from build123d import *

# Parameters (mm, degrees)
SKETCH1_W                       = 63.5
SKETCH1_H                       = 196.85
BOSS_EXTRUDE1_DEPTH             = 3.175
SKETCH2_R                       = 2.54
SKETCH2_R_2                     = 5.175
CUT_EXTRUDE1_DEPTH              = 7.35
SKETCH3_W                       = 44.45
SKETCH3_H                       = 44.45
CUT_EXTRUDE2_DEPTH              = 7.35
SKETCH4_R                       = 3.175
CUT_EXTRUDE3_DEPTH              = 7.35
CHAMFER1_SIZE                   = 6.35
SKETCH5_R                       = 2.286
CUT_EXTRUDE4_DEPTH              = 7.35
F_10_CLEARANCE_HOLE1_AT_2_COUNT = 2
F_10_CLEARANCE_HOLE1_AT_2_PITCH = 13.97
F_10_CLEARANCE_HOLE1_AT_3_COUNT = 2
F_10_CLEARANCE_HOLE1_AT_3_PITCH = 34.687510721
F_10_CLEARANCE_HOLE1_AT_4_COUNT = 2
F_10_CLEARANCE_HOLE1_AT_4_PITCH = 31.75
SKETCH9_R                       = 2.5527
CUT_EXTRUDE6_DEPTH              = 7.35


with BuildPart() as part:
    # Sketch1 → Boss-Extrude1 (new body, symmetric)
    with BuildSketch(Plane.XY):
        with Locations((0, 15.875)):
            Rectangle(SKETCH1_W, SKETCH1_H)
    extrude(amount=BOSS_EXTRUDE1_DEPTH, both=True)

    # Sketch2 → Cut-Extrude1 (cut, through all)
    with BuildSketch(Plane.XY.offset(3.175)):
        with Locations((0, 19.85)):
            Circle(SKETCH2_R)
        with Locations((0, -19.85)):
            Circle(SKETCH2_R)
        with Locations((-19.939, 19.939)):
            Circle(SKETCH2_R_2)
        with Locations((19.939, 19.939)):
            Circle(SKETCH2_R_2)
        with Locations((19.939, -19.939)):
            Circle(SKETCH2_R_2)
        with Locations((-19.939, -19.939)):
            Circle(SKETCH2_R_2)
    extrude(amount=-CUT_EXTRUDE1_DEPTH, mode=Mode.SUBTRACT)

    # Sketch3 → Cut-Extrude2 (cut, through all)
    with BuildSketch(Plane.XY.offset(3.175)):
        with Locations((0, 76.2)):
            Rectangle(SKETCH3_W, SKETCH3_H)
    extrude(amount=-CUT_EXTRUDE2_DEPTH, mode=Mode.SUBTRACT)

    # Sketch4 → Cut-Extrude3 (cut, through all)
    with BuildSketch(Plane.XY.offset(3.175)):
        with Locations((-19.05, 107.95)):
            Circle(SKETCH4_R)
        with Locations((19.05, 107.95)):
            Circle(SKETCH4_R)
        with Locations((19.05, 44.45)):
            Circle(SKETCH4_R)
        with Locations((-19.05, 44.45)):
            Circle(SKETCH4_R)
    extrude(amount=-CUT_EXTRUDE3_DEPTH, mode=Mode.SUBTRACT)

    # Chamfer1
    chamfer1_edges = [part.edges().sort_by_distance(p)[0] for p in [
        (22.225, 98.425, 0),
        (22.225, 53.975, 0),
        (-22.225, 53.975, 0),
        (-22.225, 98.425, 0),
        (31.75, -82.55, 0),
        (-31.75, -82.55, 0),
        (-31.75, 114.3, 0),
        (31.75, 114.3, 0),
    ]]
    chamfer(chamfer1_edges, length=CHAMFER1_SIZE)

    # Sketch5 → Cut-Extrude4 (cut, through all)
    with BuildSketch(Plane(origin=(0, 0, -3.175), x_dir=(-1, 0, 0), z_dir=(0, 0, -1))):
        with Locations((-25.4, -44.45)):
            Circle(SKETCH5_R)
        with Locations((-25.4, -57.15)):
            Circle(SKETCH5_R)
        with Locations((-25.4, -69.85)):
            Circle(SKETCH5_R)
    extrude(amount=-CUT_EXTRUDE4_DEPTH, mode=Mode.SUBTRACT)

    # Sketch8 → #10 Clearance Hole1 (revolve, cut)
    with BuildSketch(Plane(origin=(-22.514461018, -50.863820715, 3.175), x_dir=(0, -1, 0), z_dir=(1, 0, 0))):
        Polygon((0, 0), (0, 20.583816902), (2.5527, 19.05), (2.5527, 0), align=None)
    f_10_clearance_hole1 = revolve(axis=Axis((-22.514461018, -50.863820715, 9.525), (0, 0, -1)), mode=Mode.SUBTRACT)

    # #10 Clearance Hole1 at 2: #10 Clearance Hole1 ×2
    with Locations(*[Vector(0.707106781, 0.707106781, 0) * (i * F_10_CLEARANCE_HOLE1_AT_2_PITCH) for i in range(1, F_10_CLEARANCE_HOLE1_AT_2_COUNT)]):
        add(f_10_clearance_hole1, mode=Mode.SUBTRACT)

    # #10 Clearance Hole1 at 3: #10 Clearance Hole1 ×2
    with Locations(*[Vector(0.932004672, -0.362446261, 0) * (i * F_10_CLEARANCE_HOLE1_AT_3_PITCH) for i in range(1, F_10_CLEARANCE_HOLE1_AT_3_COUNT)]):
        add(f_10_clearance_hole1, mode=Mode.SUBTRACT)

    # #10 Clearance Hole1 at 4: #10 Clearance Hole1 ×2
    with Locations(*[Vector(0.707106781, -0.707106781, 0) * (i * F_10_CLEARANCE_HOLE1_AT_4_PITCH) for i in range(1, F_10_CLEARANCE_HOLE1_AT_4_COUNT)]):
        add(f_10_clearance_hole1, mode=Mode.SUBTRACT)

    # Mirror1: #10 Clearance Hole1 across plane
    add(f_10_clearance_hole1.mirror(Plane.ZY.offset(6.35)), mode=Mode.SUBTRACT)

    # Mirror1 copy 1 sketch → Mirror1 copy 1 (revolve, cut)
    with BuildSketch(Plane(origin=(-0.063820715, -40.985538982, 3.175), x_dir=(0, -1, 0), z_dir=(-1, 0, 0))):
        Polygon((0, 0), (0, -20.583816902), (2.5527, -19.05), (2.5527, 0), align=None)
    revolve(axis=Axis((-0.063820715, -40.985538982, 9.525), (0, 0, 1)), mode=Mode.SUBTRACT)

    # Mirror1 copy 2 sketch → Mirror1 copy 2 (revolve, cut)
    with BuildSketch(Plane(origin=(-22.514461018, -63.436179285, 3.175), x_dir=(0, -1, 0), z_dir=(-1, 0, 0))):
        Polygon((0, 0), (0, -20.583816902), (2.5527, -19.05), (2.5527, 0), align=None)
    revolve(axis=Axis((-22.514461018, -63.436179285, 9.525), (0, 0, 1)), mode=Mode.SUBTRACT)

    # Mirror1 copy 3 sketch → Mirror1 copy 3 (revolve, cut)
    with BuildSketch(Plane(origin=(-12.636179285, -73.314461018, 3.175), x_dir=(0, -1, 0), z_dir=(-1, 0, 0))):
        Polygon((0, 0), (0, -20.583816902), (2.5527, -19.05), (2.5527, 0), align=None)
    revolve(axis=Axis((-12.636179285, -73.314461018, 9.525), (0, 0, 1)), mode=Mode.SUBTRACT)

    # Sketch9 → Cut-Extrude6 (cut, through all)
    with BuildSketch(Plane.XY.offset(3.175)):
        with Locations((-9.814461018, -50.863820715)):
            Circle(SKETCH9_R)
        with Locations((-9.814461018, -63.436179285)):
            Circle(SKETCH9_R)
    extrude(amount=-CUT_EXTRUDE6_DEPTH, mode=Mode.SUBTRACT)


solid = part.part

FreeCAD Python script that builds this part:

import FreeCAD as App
import Part
import Sketcher

V = App.Vector
Q = App.Units.Quantity


def edges_at(feature, points):
    """Names of the edges that pass closest to the given points."""
    edges = feature.Shape.Edges
    near = lambda p: min(range(len(edges)), key=lambda i: edges[i].distToShape(Part.Vertex(*p))[0])
    return sorted({f"Edge{near(p) + 1}" for p in points})

doc = App.newDocument("Part")
body = doc.addObject("PartDesign::Body", "Body")

sketch1 = body.newObject("Sketcher::SketchObject", "Sketch")
sketch1.AttachmentSupport = (doc.getObject("XY_Plane"), [""])
sketch1.MapMode = "FlatFace"
sketch1.addGeometry(Part.LineSegment(V(-32, 114, 0), V(-32, -83, 0)), False)
sketch1.addGeometry(Part.LineSegment(V(-32, -83, 0), V(32, -83, 0)), False)
sketch1.addGeometry(Part.LineSegment(V(32, -83, 0), V(32, 114, 0)), False)
sketch1.addGeometry(Part.LineSegment(V(32, 114, 0), V(-32, 114, 0)), False)
sketch1.addConstraint(Sketcher.Constraint("Coincident", 0, 2, 1, 1))
sketch1.addConstraint(Sketcher.Constraint("Coincident", 1, 2, 2, 1))
sketch1.addConstraint(Sketcher.Constraint("Coincident", 2, 2, 3, 1))
sketch1.addConstraint(Sketcher.Constraint("Coincident", 3, 2, 0, 1))
sketch1.addConstraint(Sketcher.Constraint("Vertical", 0))
sketch1.addConstraint(Sketcher.Constraint("Horizontal", 1))
sketch1.addConstraint(Sketcher.Constraint("Vertical", 2))
sketch1.addConstraint(Sketcher.Constraint("Horizontal", 3))
sketch1.addConstraint(Sketcher.Constraint("DistanceX", 1, 1, 1, 2, Q("2.5 in")))
sketch1.addConstraint(Sketcher.Constraint("DistanceY", 0, 2, 0, 1, Q("7.75 in")))
sketch1.addConstraint(Sketcher.Constraint("DistanceY", -1, 1, 2, 2, Q("4.5 in")))
sketch1.addConstraint(Sketcher.Constraint("DistanceX", 0, 2, -1, 1, Q("1.25 in")))
pad1 = body.newObject("PartDesign::Pad", "Pad")
pad1.Profile = sketch1
pad1.Length = Q("0.25 in")
pad1.Midplane = True

sketch2 = body.newObject("Sketcher::SketchObject", "Sketch001")
sketch2.AttachmentSupport = (doc.getObject("XY_Plane"), [""])
sketch2.MapMode = "FlatFace"
sketch2.AttachmentOffset = App.Placement(V(0, 0, 0.125 * 25.4), App.Rotation())
sketch2.addGeometry(Part.Circle(V(0, 19.9, 0), V(0, 0, 1), 2.5), False)
sketch2.addGeometry(Part.Circle(V(0, -19.9, 0), V(0, 0, 1), 2.5), False)
sketch2.addGeometry(Part.Circle(V(-19.9, 19.9, 0), V(0, 0, 1), 5.2), False)
sketch2.addGeometry(Part.Circle(V(19.9, 19.9, 0), V(0, 0, 1), 5.2), False)
sketch2.addGeometry(Part.Circle(V(19.9, -19.9, 0), V(0, 0, 1), 5.2), False)
sketch2.addGeometry(Part.Circle(V(-19.9, -19.9, 0), V(0, 0, 1), 5.2), False)
sketch2.addConstraint(Sketcher.Constraint("Equal", 0, 1))
sketch2.addConstraint(Sketcher.Constraint("Equal", 2, 3))
sketch2.addConstraint(Sketcher.Constraint("Equal", 3, 4))
sketch2.addConstraint(Sketcher.Constraint("Equal", 4, 5))
sketch2.addConstraint(Sketcher.Constraint("Symmetric", 0, 3, 1, 3, -1, 1))
sketch2.addConstraint(Sketcher.Constraint("Symmetric", 2, 3, 4, 3, -1, 1))
sketch2.addConstraint(Sketcher.Constraint("Symmetric", 3, 3, 5, 3, -1, 1))
sketch2.addConstraint(Sketcher.Constraint("Symmetric", 2, 3, 3, 3, -2))
sketch2.addConstraint(Sketcher.Constraint("PointOnObject", 0, 3, -2))
sketch2.addConstraint(Sketcher.Constraint("Diameter", 0, Q("0.2 in")))
sketch2.addConstraint(Sketcher.Constraint("Diameter", 2, Q("10.35 mm")))
sketch2.addConstraint(Sketcher.Constraint("DistanceX", 2, 3, 3, 3, Q("1.57 in")))
sketch2.addConstraint(Sketcher.Constraint("DistanceY", 4, 3, 3, 3, Q("1.57 in")))
sketch2.addConstraint(Sketcher.Constraint("DistanceY", -1, 1, 0, 3, Q("19.85 mm")))
pocket1 = body.newObject("PartDesign::Pocket", "Pocket")
pocket1.Profile = sketch2
pocket1.Type = "ThroughAll"

sketch3 = body.newObject("Sketcher::SketchObject", "Sketch002")
sketch3.AttachmentSupport = (doc.getObject("XY_Plane"), [""])
sketch3.MapMode = "FlatFace"
sketch3.AttachmentOffset = App.Placement(V(0, 0, 0.125 * 25.4), App.Rotation())
sketch3.addGeometry(Part.LineSegment(V(-22, 98, 0), V(-22, 54, 0)), False)
sketch3.addGeometry(Part.LineSegment(V(-22, 54, 0), V(22, 54, 0)), False)
sketch3.addGeometry(Part.LineSegment(V(22, 54, 0), V(22, 98, 0)), False)
sketch3.addGeometry(Part.LineSegment(V(22, 98, 0), V(-22, 98, 0)), False)
sketch3.addConstraint(Sketcher.Constraint("Coincident", 0, 2, 1, 1))
sketch3.addConstraint(Sketcher.Constraint("Coincident", 1, 2, 2, 1))
sketch3.addConstraint(Sketcher.Constraint("Coincident", 2, 2, 3, 1))
sketch3.addConstraint(Sketcher.Constraint("Coincident", 3, 2, 0, 1))
sketch3.addConstraint(Sketcher.Constraint("Vertical", 0))
sketch3.addConstraint(Sketcher.Constraint("Horizontal", 1))
sketch3.addConstraint(Sketcher.Constraint("Vertical", 2))
sketch3.addConstraint(Sketcher.Constraint("Horizontal", 3))
sketch3.addConstraint(Sketcher.Constraint("Equal", 3, 0))
sketch3.addConstraint(Sketcher.Constraint("DistanceX", 1, 1, 1, 2, Q("1.75 in")))
sketch3.addConstraint(Sketcher.Constraint("DistanceX", 0, 2, -1, 1, Q("0.875 in")))
sketch3.addConstraint(Sketcher.Constraint("DistanceY", -1, 1, 0, 2, Q("2.125 in")))
pocket2 = body.newObject("PartDesign::Pocket", "Pocket001")
pocket2.Profile = sketch3
pocket2.Type = "ThroughAll"

sketch4 = body.newObject("Sketcher::SketchObject", "Sketch003")
sketch4.AttachmentSupport = (doc.getObject("XY_Plane"), [""])
sketch4.MapMode = "FlatFace"
sketch4.AttachmentOffset = App.Placement(V(0, 0, 0.125 * 25.4), App.Rotation())
sketch4.addGeometry(Part.Circle(V(-19.1, 108, 0), V(0, 0, 1), 3.2), False)
sketch4.addGeometry(Part.Circle(V(19.1, 108, 0), V(0, 0, 1), 3.2), False)
sketch4.addGeometry(Part.Circle(V(19.1, 44.5, 0), V(0, 0, 1), 3.2), False)
sketch4.addGeometry(Part.Circle(V(-19.1, 44.5, 0), V(0, 0, 1), 3.2), False)
sketch4.addConstraint(Sketcher.Constraint("Equal", 0, 1))
sketch4.addConstraint(Sketcher.Constraint("Equal", 1, 2))
sketch4.addConstraint(Sketcher.Constraint("Equal", 2, 3))
sketch4.addConstraint(Sketcher.Constraint("Symmetric", 0, 3, 1, 3, -2))
sketch4.addConstraint(Sketcher.Constraint("Symmetric", 2, 3, 3, 3, -2))
sketch4.addConstraint(Sketcher.Constraint("Vertical", 1, 3, 2, 3))
sketch4.addConstraint(Sketcher.Constraint("Diameter", 0, Q("0.25 in")))
sketch4.addConstraint(Sketcher.Constraint("DistanceX", 0, 3, 1, 3, Q("1.5 in")))
sketch4.addConstraint(Sketcher.Constraint("DistanceY", 2, 3, 1, 3, Q("2.5 in")))
sketch4.addConstraint(Sketcher.Constraint("DistanceY", -1, 1, 0, 3, Q("4.25 in")))
pocket3 = body.newObject("PartDesign::Pocket", "Pocket002")
pocket3.Profile = sketch4
pocket3.Type = "ThroughAll"
doc.recompute()

chamfer = body.newObject("PartDesign::Chamfer", "Chamfer")
chamfer.Base = (pocket3, edges_at(pocket3, [
    (22.225, 98.425, 0),
    (22.225, 53.975, 0),
    (-22.225, 53.975, 0),
    (-22.225, 98.425, 0),
    (31.75, -82.55, 0),
    (-31.75, -82.55, 0),
    (-31.75, 114.3, 0),
    (31.75, 114.3, 0),
]))
chamfer.Size = Q("0.25 in")

sketch5 = body.newObject("Sketcher::SketchObject", "Sketch004")
sketch5.AttachmentSupport = (doc.getObject("XY_Plane"), [""])
sketch5.MapMode = "FlatFace"
sketch5.AttachmentOffset = App.Placement(V(0, 0, -0.125 * 25.4), App.Rotation())
sketch5.addGeometry(Part.Circle(V(25.4, -44.5, 0), V(0, 0, 1), 2.3), False)
sketch5.addGeometry(Part.Circle(V(25.4, -57.1, 0), V(0, 0, 1), 2.3), False)
sketch5.addGeometry(Part.Circle(V(25.4, -69.8, 0), V(0, 0, 1), 2.3), False)
sketch5.addConstraint(Sketcher.Constraint("Equal", 0, 1))
sketch5.addConstraint(Sketcher.Constraint("Equal", 1, 2))
sketch5.addConstraint(Sketcher.Constraint("Vertical", 0, 3, 1, 3))
sketch5.addConstraint(Sketcher.Constraint("Vertical", 1, 3, 2, 3))
sketch5.addConstraint(Sketcher.Constraint("Diameter", 0, Q("0.18 in")))
sketch5.addConstraint(Sketcher.Constraint("DistanceX", -1, 1, 0, 3, Q("1 in")))
sketch5.addConstraint(Sketcher.Constraint("DistanceY", 2, 3, 0, 3, Q("1 in")))
sketch5.addConstraint(Sketcher.Constraint("DistanceY", 1, 3, 0, 3, Q("0.5 in")))
sketch5.addConstraint(Sketcher.Constraint("DistanceY", 0, 3, -1, 1, Q("1.75 in")))
pocket4 = body.newObject("PartDesign::Pocket", "Pocket003")
pocket4.Profile = sketch5
pocket4.Type = "ThroughAll"
pocket4.Reversed = True

sketch6 = body.newObject("Sketcher::SketchObject", "Sketch005")
sketch6.AttachmentSupport = (doc.getObject("YZ_Plane"), [""])
sketch6.MapMode = "FlatFace"
sketch6.AttachmentOffset = App.Placement(V(0, 0, -22.514461), App.Rotation())
sketch6.addGeometry(Part.LineSegment(V(-50.9, -17.4, 0), V(-50.9, 3.2, 0)), False)
sketch6.addGeometry(Part.LineSegment(V(-50.9, 3.2, 0), V(-53.4, 3.2, 0)), False)
sketch6.addGeometry(Part.LineSegment(V(-53.4, 3.2, 0), V(-53.4, -15.9, 0)), False)
sketch6.addGeometry(Part.LineSegment(V(-53.4, -15.9, 0), V(-50.9, -17.4, 0)), False)
sketch6.addGeometry(Part.LineSegment(V(-50.9, 3.2, 0), V(-50.9, -17.4, 0)), True)
sketch6.addConstraint(Sketcher.Constraint("Coincident", 0, 2, 1, 1))
sketch6.addConstraint(Sketcher.Constraint("Coincident", 1, 2, 2, 1))
sketch6.addConstraint(Sketcher.Constraint("Coincident", 2, 2, 3, 1))
sketch6.addConstraint(Sketcher.Constraint("Coincident", 3, 2, 0, 1))
sketch6.addConstraint(Sketcher.Constraint("Vertical", 0))
sketch6.addConstraint(Sketcher.Constraint("Horizontal", 1))
sketch6.addConstraint(Sketcher.Constraint("Vertical", 2))
sketch6.addConstraint(Sketcher.Constraint("Vertical", 4))
sketch6.addConstraint(Sketcher.Constraint("Coincident", 4, 1, 0, 2))
sketch6.addConstraint(Sketcher.Constraint("Equal", 0, 4))
sketch6.addConstraint(Sketcher.Constraint("Angle", 3, Q("-31 deg")))
sketch6.addConstraint(Sketcher.Constraint("DistanceY", 2, 2, 2, 1, Q("0.75 in")))
sketch6.addConstraint(Sketcher.Constraint("DistanceX", 1, 2, 1, 1, Q("0.1005 in")))
sketch6.addConstraint(Sketcher.Constraint("DistanceY", -1, 1, 0, 2, Q("0.125 in")))
sketch6.addConstraint(Sketcher.Constraint("DistanceX", 0, 2, -1, 1, Q("50.863821 mm")))
groove = body.newObject("PartDesign::Groove", "Groove")
groove.Profile = sketch6
groove.ReferenceAxis = (sketch6, ["Axis0"])
groove.Angle = 360
doc.recompute()

datumline = body.newObject("PartDesign::Line", "DatumLine")
datumline.Placement = App.Placement(V(0, 0, 0), App.Rotation(V(0, 0, 1), V(0.707106781, 0.707106781, 0)))
linearpattern = body.newObject("PartDesign::LinearPattern", "LinearPattern")
linearpattern.Originals = [groove]
linearpattern.Direction = (datumline, [""])
linearpattern.Mode = "offset"
linearpattern.Offset = Q("0.55 in")
linearpattern.Occurrences = 2
body.Tip = linearpattern
doc.recompute()

datumline2 = body.newObject("PartDesign::Line", "DatumLine001")
datumline2.Placement = App.Placement(V(0, 0, 0), App.Rotation(V(0, 0, 1), V(0.932004672, -0.362446261, 0)))
linearpattern2 = body.newObject("PartDesign::LinearPattern", "LinearPattern001")
linearpattern2.Originals = [groove]
linearpattern2.Direction = (datumline2, [""])
linearpattern2.Mode = "offset"
linearpattern2.Offset = 34.687511
linearpattern2.Occurrences = 2
body.Tip = linearpattern2
doc.recompute()

datumline3 = body.newObject("PartDesign::Line", "DatumLine002")
datumline3.Placement = App.Placement(V(0, 0, 0), App.Rotation(V(0, 0, 1), V(0.707106781, -0.707106781, 0)))
linearpattern3 = body.newObject("PartDesign::LinearPattern", "LinearPattern002")
linearpattern3.Originals = [groove]
linearpattern3.Direction = (datumline3, [""])
linearpattern3.Mode = "offset"
linearpattern3.Offset = Q("1.25 in")
linearpattern3.Occurrences = 2
body.Tip = linearpattern3
doc.recompute()

datumplane = body.newObject("PartDesign::Plane", "DatumPlane")
datumplane.AttachmentSupport = (doc.getObject("YZ_Plane"), [""])
datumplane.MapMode = "FlatFace"
datumplane.AttachmentOffset = App.Placement(V(0, 0, -0.25 * 25.4), App.Rotation())
mirrored = body.newObject("PartDesign::Mirrored", "Mirrored")
mirrored.Originals = [groove]
mirrored.MirrorPlane = (datumplane, [""])
body.Tip = mirrored

sketch7 = body.newObject("Sketcher::SketchObject", "Sketch006")
sketch7.AttachmentSupport = (doc.getObject("YZ_Plane"), [""])
sketch7.MapMode = "FlatFace"
sketch7.AttachmentOffset = App.Placement(V(0, 0, -0.063821), App.Rotation())
sketch7.addGeometry(Part.LineSegment(V(-41, 3.2, 0), V(-41, -17.4, 0)), False)
sketch7.addGeometry(Part.LineSegment(V(-41, -17.4, 0), V(-43.5, -15.9, 0)), False)
sketch7.addGeometry(Part.LineSegment(V(-43.5, -15.9, 0), V(-43.5, 3.2, 0)), False)
sketch7.addGeometry(Part.LineSegment(V(-43.5, 3.2, 0), V(-41, 3.2, 0)), False)
sketch7.addGeometry(Part.LineSegment(V(-41, -17.4, 0), V(-41, 3.2, 0)), True)
sketch7.addConstraint(Sketcher.Constraint("Coincident", 0, 2, 1, 1))
sketch7.addConstraint(Sketcher.Constraint("Coincident", 1, 2, 2, 1))
sketch7.addConstraint(Sketcher.Constraint("Coincident", 2, 2, 3, 1))
sketch7.addConstraint(Sketcher.Constraint("Coincident", 3, 2, 0, 1))
sketch7.addConstraint(Sketcher.Constraint("Vertical", 0))
sketch7.addConstraint(Sketcher.Constraint("Vertical", 2))
sketch7.addConstraint(Sketcher.Constraint("Horizontal", 3))
sketch7.addConstraint(Sketcher.Constraint("Vertical", 4))
sketch7.addConstraint(Sketcher.Constraint("Coincident", 4, 1, 0, 2))
sketch7.addConstraint(Sketcher.Constraint("Horizontal", 2, 2, 4, 2))
sketch7.addConstraint(Sketcher.Constraint("Angle", 1, Q("149 deg")))
sketch7.addConstraint(Sketcher.Constraint("DistanceY", 2, 1, 2, 2, Q("0.75 in")))
sketch7.addConstraint(Sketcher.Constraint("DistanceX", 3, 1, 3, 2, Q("0.1005 in")))
sketch7.addConstraint(Sketcher.Constraint("DistanceY", 1, 2, -1, 1, Q("0.625 in")))
sketch7.addConstraint(Sketcher.Constraint("DistanceX", 0, 2, -1, 1, Q("40.985539 mm")))
groove2 = body.newObject("PartDesign::Groove", "Groove001")
groove2.Profile = sketch7
groove2.ReferenceAxis = (sketch7, ["Axis0"])
groove2.Angle = 360

sketch8 = body.newObject("Sketcher::SketchObject", "Sketch007")
sketch8.AttachmentSupport = (doc.getObject("YZ_Plane"), [""])
sketch8.MapMode = "FlatFace"
sketch8.AttachmentOffset = App.Placement(V(0, 0, -22.514461), App.Rotation())
sketch8.addGeometry(Part.LineSegment(V(-63.4, 3.2, 0), V(-63.4, -17.4, 0)), False)
sketch8.addGeometry(Part.LineSegment(V(-63.4, -17.4, 0), V(-66, -15.9, 0)), False)
sketch8.addGeometry(Part.LineSegment(V(-66, -15.9, 0), V(-66, 3.2, 0)), False)
sketch8.addGeometry(Part.LineSegment(V(-66, 3.2, 0), V(-63.4, 3.2, 0)), False)
sketch8.addGeometry(Part.LineSegment(V(-63.4, -17.4, 0), V(-63.4, 3.2, 0)), True)
sketch8.addConstraint(Sketcher.Constraint("Coincident", 0, 2, 1, 1))
sketch8.addConstraint(Sketcher.Constraint("Coincident", 1, 2, 2, 1))
sketch8.addConstraint(Sketcher.Constraint("Coincident", 2, 2, 3, 1))
sketch8.addConstraint(Sketcher.Constraint("Coincident", 3, 2, 0, 1))
sketch8.addConstraint(Sketcher.Constraint("Vertical", 0))
sketch8.addConstraint(Sketcher.Constraint("Vertical", 2))
sketch8.addConstraint(Sketcher.Constraint("Horizontal", 3))
sketch8.addConstraint(Sketcher.Constraint("Vertical", 4))
sketch8.addConstraint(Sketcher.Constraint("Coincident", 4, 1, 0, 2))
sketch8.addConstraint(Sketcher.Constraint("Horizontal", 2, 2, 4, 2))
sketch8.addConstraint(Sketcher.Constraint("Angle", 1, Q("149 deg")))
sketch8.addConstraint(Sketcher.Constraint("DistanceY", 2, 1, 2, 2, Q("0.75 in")))
sketch8.addConstraint(Sketcher.Constraint("DistanceX", 3, 1, 3, 2, Q("0.1005 in")))
sketch8.addConstraint(Sketcher.Constraint("DistanceY", 1, 2, -1, 1, Q("0.625 in")))
sketch8.addConstraint(Sketcher.Constraint("DistanceX", 0, 2, -1, 1, Q("63.436179 mm")))
groove3 = body.newObject("PartDesign::Groove", "Groove002")
groove3.Profile = sketch8
groove3.ReferenceAxis = (sketch8, ["Axis0"])
groove3.Angle = 360

sketch9 = body.newObject("Sketcher::SketchObject", "Sketch008")
sketch9.AttachmentSupport = (doc.getObject("YZ_Plane"), [""])
sketch9.MapMode = "FlatFace"
sketch9.AttachmentOffset = App.Placement(V(0, 0, -12.636179), App.Rotation())
sketch9.addGeometry(Part.LineSegment(V(-73.3, 3.2, 0), V(-73.3, -17.4, 0)), False)
sketch9.addGeometry(Part.LineSegment(V(-73.3, -17.4, 0), V(-75.9, -15.9, 0)), False)
sketch9.addGeometry(Part.LineSegment(V(-75.9, -15.9, 0), V(-75.9, 3.2, 0)), False)
sketch9.addGeometry(Part.LineSegment(V(-75.9, 3.2, 0), V(-73.3, 3.2, 0)), False)
sketch9.addGeometry(Part.LineSegment(V(-73.3, -17.4, 0), V(-73.3, 3.2, 0)), True)
sketch9.addConstraint(Sketcher.Constraint("Coincident", 0, 2, 1, 1))
sketch9.addConstraint(Sketcher.Constraint("Coincident", 1, 2, 2, 1))
sketch9.addConstraint(Sketcher.Constraint("Coincident", 2, 2, 3, 1))
sketch9.addConstraint(Sketcher.Constraint("Coincident", 3, 2, 0, 1))
sketch9.addConstraint(Sketcher.Constraint("Vertical", 0))
sketch9.addConstraint(Sketcher.Constraint("Vertical", 2))
sketch9.addConstraint(Sketcher.Constraint("Horizontal", 3))
sketch9.addConstraint(Sketcher.Constraint("Vertical", 4))
sketch9.addConstraint(Sketcher.Constraint("Coincident", 4, 1, 0, 2))
sketch9.addConstraint(Sketcher.Constraint("Horizontal", 2, 2, 4, 2))
sketch9.addConstraint(Sketcher.Constraint("Angle", 1, Q("149 deg")))
sketch9.addConstraint(Sketcher.Constraint("DistanceY", 2, 1, 2, 2, Q("0.75 in")))
sketch9.addConstraint(Sketcher.Constraint("DistanceX", 3, 1, 3, 2, Q("0.1005 in")))
sketch9.addConstraint(Sketcher.Constraint("DistanceY", 1, 2, -1, 1, Q("0.625 in")))
sketch9.addConstraint(Sketcher.Constraint("DistanceX", 0, 2, -1, 1, Q("73.314461 mm")))
groove4 = body.newObject("PartDesign::Groove", "Groove003")
groove4.Profile = sketch9
groove4.ReferenceAxis = (sketch9, ["Axis0"])
groove4.Angle = 360

sketch10 = body.newObject("Sketcher::SketchObject", "Sketch009")
sketch10.AttachmentSupport = (doc.getObject("XY_Plane"), [""])
sketch10.MapMode = "FlatFace"
sketch10.AttachmentOffset = App.Placement(V(0, 0, 0.125 * 25.4), App.Rotation())
sketch10.addGeometry(Part.Circle(V(-9.8, -50.9, 0), V(0, 0, 1), 2.6), False)
sketch10.addGeometry(Part.Circle(V(-9.8, -63.4, 0), V(0, 0, 1), 2.6), False)
sketch10.addConstraint(Sketcher.Constraint("Equal", 0, 1))
sketch10.addConstraint(Sketcher.Constraint("Vertical", 0, 3, 1, 3))
sketch10.addConstraint(Sketcher.Constraint("Diameter", 0, Q("0.201 in")))
sketch10.addConstraint(Sketcher.Constraint("DistanceX", 0, 3, -1, 1, Q("9.814461 mm")))
sketch10.addConstraint(Sketcher.Constraint("DistanceY", 0, 3, -1, 1, Q("50.863821 mm")))
sketch10.addConstraint(Sketcher.Constraint("DistanceY", 1, 3, -1, 1, Q("63.436179 mm")))
pocket5 = body.newObject("PartDesign::Pocket", "Pocket004")
pocket5.Profile = sketch10
pocket5.Type = "ThroughAll"

doc.recompute()
